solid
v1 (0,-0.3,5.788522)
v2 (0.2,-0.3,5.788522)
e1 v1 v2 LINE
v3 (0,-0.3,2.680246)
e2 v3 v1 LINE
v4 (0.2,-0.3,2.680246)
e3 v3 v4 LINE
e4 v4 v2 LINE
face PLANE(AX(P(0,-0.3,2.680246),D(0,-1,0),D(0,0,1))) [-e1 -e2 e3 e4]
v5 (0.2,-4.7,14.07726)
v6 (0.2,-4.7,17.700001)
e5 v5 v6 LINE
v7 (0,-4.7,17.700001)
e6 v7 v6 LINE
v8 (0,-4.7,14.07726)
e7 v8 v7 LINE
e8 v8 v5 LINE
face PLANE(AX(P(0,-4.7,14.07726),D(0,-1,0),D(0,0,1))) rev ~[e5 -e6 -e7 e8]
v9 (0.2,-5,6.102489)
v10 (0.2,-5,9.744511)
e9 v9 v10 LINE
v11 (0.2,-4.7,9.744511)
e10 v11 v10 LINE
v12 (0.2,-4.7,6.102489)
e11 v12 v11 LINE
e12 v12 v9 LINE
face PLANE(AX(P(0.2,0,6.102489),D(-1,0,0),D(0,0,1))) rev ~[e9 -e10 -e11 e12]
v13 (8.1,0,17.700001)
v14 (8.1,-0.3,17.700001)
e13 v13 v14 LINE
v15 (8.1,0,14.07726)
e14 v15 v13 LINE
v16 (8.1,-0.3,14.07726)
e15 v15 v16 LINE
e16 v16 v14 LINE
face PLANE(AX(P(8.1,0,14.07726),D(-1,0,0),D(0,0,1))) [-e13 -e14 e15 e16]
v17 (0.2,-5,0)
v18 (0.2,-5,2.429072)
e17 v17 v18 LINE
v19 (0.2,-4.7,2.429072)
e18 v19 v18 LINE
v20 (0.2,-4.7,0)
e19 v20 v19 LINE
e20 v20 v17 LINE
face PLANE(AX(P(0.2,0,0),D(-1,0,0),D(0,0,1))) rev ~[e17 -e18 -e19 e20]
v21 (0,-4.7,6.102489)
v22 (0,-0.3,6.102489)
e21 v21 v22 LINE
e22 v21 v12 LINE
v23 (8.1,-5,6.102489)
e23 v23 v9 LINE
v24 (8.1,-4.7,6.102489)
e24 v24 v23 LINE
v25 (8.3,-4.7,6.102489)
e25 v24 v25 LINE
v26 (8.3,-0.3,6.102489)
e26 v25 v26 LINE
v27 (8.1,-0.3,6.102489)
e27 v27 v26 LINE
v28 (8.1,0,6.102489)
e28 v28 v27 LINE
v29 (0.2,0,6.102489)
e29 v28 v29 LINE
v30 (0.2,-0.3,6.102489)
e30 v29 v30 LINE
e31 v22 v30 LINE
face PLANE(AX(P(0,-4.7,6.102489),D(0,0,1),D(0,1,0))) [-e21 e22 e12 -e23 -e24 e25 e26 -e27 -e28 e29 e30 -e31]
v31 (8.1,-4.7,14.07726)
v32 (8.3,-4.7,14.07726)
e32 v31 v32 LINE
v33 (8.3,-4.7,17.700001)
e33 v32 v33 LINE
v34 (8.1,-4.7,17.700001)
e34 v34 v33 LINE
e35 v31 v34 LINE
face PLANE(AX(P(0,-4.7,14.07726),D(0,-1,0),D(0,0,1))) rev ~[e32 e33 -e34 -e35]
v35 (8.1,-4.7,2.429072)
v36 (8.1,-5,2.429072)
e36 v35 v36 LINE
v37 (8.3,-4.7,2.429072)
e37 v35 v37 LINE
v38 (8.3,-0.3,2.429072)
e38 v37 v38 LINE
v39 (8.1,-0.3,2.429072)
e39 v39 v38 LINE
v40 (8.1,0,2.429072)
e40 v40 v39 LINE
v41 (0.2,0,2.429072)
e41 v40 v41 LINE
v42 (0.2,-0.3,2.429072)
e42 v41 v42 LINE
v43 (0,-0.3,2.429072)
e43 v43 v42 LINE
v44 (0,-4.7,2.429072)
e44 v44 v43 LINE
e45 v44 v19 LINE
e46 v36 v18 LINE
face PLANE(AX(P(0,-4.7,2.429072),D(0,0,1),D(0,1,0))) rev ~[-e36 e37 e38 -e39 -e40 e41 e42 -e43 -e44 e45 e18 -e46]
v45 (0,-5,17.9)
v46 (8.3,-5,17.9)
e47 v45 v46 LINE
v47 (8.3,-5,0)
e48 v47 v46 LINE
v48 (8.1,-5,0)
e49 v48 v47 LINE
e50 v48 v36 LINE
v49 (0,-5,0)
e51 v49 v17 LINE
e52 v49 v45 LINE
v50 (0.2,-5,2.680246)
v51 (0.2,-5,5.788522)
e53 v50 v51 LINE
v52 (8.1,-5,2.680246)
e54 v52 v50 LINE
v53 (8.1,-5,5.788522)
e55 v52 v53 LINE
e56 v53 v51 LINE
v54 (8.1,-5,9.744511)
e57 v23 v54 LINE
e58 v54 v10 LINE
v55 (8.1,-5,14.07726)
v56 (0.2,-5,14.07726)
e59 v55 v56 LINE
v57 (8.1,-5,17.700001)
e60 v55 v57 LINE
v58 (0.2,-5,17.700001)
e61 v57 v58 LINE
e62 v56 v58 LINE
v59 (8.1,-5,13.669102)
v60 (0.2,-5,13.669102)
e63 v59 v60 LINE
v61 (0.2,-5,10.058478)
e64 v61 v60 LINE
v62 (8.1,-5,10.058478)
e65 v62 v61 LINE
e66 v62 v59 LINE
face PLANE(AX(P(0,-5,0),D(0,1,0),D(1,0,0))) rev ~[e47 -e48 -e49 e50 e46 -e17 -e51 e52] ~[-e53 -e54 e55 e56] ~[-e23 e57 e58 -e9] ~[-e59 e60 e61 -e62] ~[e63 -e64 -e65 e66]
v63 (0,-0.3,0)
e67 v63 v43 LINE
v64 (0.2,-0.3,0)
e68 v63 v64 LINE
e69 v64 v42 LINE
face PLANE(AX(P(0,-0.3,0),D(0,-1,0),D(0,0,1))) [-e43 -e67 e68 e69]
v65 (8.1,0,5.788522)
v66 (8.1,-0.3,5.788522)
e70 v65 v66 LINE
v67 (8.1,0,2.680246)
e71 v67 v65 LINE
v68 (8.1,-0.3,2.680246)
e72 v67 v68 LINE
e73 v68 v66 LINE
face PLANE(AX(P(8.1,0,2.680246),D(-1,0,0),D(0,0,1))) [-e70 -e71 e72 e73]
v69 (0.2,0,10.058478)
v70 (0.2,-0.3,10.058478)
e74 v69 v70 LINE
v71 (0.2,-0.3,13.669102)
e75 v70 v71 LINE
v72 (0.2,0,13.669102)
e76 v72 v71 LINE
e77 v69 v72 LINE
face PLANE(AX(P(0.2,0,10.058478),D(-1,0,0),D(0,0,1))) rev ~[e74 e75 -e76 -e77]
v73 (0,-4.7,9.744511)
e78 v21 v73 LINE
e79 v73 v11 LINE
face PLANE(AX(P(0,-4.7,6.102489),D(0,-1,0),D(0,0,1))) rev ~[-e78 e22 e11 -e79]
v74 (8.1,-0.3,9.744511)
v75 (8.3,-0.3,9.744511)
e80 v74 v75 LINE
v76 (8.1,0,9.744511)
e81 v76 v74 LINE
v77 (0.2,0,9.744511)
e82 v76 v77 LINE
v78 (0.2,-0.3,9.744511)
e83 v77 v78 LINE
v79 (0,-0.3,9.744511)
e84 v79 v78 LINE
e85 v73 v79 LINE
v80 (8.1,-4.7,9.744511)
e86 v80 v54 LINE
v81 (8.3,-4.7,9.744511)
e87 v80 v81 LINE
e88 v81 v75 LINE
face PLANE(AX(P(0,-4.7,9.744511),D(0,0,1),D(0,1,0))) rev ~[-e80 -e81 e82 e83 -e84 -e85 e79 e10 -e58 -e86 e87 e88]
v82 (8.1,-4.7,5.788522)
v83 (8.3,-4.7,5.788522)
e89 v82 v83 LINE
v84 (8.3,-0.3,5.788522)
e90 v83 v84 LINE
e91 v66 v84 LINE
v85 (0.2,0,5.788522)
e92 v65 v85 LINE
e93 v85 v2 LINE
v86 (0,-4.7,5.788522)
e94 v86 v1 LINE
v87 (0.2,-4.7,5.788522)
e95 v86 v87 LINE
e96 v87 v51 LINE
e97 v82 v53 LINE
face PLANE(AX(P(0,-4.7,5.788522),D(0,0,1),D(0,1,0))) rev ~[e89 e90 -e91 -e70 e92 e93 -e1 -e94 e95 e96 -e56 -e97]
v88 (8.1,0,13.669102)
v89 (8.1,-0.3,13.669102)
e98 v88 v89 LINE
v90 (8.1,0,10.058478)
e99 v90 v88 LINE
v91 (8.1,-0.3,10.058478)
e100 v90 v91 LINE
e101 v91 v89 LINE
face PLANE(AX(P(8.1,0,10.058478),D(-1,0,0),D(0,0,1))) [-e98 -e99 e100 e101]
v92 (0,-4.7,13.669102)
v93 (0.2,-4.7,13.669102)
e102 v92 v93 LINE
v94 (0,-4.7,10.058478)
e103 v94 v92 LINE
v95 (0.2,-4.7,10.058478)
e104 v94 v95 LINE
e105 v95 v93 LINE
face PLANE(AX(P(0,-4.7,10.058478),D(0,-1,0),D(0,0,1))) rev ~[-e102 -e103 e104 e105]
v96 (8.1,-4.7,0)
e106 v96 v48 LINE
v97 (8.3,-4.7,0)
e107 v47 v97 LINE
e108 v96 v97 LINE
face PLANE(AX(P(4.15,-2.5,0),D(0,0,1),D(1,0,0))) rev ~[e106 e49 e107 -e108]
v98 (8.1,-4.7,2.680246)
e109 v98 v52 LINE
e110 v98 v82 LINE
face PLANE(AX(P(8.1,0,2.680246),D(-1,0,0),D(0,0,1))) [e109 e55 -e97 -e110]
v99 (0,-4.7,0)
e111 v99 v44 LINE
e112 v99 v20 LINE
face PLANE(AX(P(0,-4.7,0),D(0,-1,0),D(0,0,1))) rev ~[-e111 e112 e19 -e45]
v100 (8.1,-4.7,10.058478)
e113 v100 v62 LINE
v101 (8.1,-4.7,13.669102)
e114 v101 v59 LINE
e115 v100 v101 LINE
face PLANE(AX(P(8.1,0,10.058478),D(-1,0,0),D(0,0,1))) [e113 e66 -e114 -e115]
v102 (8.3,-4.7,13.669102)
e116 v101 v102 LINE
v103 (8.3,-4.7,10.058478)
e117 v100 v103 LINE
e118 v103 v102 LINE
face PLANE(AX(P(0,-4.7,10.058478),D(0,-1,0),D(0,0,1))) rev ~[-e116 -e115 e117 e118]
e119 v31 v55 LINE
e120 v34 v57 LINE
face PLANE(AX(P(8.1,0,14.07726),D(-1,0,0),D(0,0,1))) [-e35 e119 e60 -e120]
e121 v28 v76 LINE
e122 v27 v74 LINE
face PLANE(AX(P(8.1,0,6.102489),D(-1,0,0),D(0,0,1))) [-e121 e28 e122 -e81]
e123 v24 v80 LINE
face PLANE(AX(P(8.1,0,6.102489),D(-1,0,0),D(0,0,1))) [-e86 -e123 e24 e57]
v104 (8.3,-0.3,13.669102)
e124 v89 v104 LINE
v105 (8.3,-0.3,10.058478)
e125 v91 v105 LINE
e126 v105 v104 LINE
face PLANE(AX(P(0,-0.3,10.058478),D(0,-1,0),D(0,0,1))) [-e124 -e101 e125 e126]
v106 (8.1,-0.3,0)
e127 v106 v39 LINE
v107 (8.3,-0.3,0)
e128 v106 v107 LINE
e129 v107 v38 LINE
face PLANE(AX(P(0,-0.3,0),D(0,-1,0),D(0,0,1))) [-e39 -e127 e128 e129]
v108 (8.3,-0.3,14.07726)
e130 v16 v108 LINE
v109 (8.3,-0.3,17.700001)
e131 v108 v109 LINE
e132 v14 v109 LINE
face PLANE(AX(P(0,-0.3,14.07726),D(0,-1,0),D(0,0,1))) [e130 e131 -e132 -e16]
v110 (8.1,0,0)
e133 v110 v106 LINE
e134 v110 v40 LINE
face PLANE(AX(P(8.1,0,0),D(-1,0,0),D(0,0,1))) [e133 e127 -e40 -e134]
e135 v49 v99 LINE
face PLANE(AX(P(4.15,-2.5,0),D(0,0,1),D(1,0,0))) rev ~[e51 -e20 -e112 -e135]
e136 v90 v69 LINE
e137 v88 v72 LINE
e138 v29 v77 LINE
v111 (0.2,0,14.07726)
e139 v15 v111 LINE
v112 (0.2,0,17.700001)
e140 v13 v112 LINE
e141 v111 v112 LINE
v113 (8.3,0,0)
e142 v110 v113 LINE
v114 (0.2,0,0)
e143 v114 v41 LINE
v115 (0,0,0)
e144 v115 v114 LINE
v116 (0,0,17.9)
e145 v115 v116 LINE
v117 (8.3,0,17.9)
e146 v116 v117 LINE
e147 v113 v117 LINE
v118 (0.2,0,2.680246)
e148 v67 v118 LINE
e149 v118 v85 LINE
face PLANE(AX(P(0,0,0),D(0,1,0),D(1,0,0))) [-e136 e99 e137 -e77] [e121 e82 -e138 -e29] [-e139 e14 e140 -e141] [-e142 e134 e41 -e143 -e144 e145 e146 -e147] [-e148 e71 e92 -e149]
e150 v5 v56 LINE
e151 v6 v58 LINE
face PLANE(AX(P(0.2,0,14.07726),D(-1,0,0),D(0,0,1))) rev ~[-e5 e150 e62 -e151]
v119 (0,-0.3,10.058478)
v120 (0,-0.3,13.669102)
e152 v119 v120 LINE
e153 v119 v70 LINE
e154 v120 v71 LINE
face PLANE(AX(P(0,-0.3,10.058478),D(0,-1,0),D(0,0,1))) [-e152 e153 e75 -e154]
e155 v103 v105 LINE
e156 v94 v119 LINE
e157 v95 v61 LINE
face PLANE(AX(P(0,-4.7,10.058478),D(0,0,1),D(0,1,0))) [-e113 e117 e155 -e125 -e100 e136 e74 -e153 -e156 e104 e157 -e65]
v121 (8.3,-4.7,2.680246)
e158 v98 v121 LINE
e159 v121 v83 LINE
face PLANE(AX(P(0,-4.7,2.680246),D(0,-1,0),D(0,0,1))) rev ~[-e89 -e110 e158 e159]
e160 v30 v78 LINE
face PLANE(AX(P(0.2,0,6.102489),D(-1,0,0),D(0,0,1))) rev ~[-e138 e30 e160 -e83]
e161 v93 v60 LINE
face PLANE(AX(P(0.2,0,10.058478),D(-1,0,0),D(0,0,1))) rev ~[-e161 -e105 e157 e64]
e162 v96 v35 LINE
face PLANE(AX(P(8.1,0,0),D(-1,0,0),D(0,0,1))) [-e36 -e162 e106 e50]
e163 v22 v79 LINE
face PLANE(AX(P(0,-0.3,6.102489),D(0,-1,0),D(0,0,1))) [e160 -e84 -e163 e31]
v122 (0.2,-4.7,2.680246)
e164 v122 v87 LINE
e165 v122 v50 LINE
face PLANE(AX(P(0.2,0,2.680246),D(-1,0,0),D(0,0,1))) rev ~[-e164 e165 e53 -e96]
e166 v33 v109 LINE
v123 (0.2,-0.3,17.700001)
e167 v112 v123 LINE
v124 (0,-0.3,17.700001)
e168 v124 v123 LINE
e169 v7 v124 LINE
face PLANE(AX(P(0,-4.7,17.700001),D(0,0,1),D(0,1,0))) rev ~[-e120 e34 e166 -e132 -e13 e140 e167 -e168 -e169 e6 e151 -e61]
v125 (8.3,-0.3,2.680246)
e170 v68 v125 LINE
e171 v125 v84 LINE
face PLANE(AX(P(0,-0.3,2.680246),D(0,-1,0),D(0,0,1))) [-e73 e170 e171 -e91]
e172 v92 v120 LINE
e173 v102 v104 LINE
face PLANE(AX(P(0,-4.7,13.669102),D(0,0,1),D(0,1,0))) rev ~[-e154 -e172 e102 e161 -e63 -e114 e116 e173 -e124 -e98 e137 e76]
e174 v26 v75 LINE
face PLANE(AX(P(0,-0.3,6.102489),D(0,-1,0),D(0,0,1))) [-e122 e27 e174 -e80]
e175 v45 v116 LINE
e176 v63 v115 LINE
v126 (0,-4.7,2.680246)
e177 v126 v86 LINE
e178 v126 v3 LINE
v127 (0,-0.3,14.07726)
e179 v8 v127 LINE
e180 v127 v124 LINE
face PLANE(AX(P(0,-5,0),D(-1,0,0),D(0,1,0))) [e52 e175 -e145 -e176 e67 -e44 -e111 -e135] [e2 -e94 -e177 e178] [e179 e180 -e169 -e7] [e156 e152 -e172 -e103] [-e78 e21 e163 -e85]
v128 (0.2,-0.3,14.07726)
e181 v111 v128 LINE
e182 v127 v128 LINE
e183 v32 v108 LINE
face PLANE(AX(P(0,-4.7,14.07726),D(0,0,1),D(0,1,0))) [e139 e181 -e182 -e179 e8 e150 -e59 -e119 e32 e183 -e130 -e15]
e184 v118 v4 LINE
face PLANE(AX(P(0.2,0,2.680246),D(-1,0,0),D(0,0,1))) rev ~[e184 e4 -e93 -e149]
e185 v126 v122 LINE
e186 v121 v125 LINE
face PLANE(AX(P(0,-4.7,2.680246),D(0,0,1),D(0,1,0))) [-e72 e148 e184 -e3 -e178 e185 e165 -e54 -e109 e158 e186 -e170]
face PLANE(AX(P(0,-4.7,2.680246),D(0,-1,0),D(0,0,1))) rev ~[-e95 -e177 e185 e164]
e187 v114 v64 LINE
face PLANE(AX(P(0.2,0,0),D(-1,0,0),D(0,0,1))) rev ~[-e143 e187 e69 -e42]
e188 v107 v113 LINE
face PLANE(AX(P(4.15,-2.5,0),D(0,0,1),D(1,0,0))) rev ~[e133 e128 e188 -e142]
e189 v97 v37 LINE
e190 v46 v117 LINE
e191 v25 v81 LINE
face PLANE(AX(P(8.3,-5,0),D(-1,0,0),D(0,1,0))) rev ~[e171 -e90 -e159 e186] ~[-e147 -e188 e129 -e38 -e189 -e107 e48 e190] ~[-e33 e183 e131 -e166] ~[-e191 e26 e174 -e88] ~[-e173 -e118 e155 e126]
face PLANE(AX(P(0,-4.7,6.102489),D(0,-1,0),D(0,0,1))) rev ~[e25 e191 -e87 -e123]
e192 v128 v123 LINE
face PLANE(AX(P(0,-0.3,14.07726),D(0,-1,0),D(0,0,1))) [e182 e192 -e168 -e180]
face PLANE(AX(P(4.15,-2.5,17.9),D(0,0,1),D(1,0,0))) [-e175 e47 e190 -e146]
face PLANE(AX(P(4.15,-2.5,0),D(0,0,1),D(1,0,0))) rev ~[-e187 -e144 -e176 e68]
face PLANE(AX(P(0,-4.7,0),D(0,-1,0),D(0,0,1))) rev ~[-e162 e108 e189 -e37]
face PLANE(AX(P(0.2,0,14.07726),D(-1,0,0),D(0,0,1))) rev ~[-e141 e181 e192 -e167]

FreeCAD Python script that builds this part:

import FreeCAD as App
import Part
import Sketcher
from FreeCAD import Vector

doc = App.newDocument("Part")
body = doc.addObject("PartDesign::Body", "Body")

sketch1 = body.newObject("Sketcher::SketchObject", "Sketch")
sketch1.AttachmentSupport = (doc.getObject("XY_Plane"), [""])
sketch1.MapMode = "FlatFace"
sketch1.addGeometry([
    Part.LineSegment(Vector(0, 0, 0), Vector(0, -5, 0)),
    Part.LineSegment(Vector(0, -5, 0), Vector(8.3, -5, 0)),
    Part.LineSegment(Vector(8.3, -5, 0), Vector(8.3, 0, 0)),
    Part.LineSegment(Vector(8.3, 0, 0), Vector(0, 0, 0)),
], False)
sketch1.addConstraint([
    Sketcher.Constraint("Coincident", 0, 2, 1, 1),
    Sketcher.Constraint("Coincident", 1, 2, 2, 1),
    Sketcher.Constraint("Coincident", 2, 2, 3, 1),
    Sketcher.Constraint("Coincident", 3, 2, 0, 1),
    Sketcher.Constraint("Vertical", 0),
    Sketcher.Constraint("Horizontal", 1),
    Sketcher.Constraint("Vertical", 2),
    Sketcher.Constraint("Horizontal", 3),
    Sketcher.Constraint("Coincident", 3, 2, -1, 1),
    Sketcher.Constraint("DistanceY", 0, 2, 0, 1, 5.0),
    Sketcher.Constraint("DistanceX", 1, 1, 1, 2, 8.3),
])
pad1 = body.newObject("PartDesign::Pad", "Pad")
pad1.Profile = sketch1
pad1.Length = 17.9

sketch2 = body.newObject("Sketcher::SketchObject", "Sketch001")
sketch2.AttachmentSupport = (doc.getObject("XZ_Plane"), [""])
sketch2.MapMode = "FlatFace"
sketch2.addGeometry([
    Part.LineSegment(Vector(8.1, 17.700001, 0), Vector(8.1, 14.07726, 0)),
    Part.LineSegment(Vector(8.1, 14.07726, 0), Vector(0.2, 14.07726, 0)),
    Part.LineSegment(Vector(0.2, 14.07726, 0), Vector(0.2, 17.700001, 0)),
    Part.LineSegment(Vector(0.2, 17.700001, 0), Vector(8.1, 17.700001, 0)),
    Part.LineSegment(Vector(8.1, 13.669102, 0), Vector(8.1, 10.058478, 0)),
    Part.LineSegment(Vector(8.1, 10.058478, 0), Vector(0.2, 10.058478, 0)),
    Part.LineSegment(Vector(0.2, 10.058478, 0), Vector(0.2, 13.669102, 0)),
    Part.LineSegment(Vector(0.2, 13.669102, 0), Vector(8.1, 13.669102, 0)),
    Part.LineSegment(Vector(8.1, 9.744511, 0), Vector(8.1, 6.102489, 0)),
    Part.LineSegment(Vector(8.1, 6.102489, 0), Vector(0.2, 6.102489, 0)),
    Part.LineSegment(Vector(0.2, 6.102489, 0), Vector(0.2, 9.744511, 0)),
    Part.LineSegment(Vector(0.2, 9.744511, 0), Vector(8.1, 9.744511, 0)),
    Part.LineSegment(Vector(8.1, 5.788522, 0), Vector(8.1, 2.680246, 0)),
    Part.LineSegment(Vector(8.1, 2.680246, 0), Vector(0.2, 2.680246, 0)),
    Part.LineSegment(Vector(0.2, 2.680246, 0), Vector(0.2, 5.788522, 0)),
    Part.LineSegment(Vector(0.2, 5.788522, 0), Vector(8.1, 5.788522, 0)),
    Part.LineSegment(Vector(8.1, 2.429072, 0), Vector(8.1, 0, 0)),
    Part.LineSegment(Vector(8.1, 0, 0), Vector(0.2, 0, 0)),
    Part.LineSegment(Vector(0.2, 0, 0), Vector(0.2, 2.429072, 0)),
    Part.LineSegment(Vector(0.2, 2.429072, 0), Vector(8.1, 2.429072, 0)),
], False)
sketch2.addConstraint([
    Sketcher.Constraint("Coincident", 0, 2, 1, 1),
    Sketcher.Constraint("Coincident", 1, 2, 2, 1),
    Sketcher.Constraint("Coincident", 2, 2, 3, 1),
    Sketcher.Constraint("Coincident", 3, 2, 0, 1),
    Sketcher.Constraint("Coincident", 4, 2, 5, 1),
    Sketcher.Constraint("Coincident", 5, 2, 6, 1),
    Sketcher.Constraint("Coincident", 6, 2, 7, 1),
    Sketcher.Constraint("Coincident", 7, 2, 4, 1),
    Sketcher.Constraint("Coincident", 8, 2, 9, 1),
    Sketcher.Constraint("Coincident", 9, 2, 10, 1),
    Sketcher.Constraint("Coincident", 10, 2, 11, 1),
    Sketcher.Constraint("Coincident", 11, 2, 8, 1),
    Sketcher.Constraint("Coincident", 12, 2, 13, 1),
    Sketcher.Constraint("Coincident", 13, 2, 14, 1),
    Sketcher.Constraint("Coincident", 14, 2, 15, 1),
    Sketcher.Constraint("Coincident", 15, 2, 12, 1),
    Sketcher.Constraint("Coincident", 16, 2, 17, 1),
    Sketcher.Constraint("Coincident", 17, 2, 18, 1),
    Sketcher.Constraint("Coincident", 18, 2, 19, 1),
    Sketcher.Constraint("Coincident", 19, 2, 16, 1),
    Sketcher.Constraint("Vertical", 0),
    Sketcher.Constraint("Horizontal", 1),
    Sketcher.Constraint("Vertical", 2),
    Sketcher.Constraint("Horizontal", 3),
    Sketcher.Constraint("Vertical", 4),
    Sketcher.Constraint("Horizontal", 5),
    Sketcher.Constraint("Vertical", 6),
    Sketcher.Constraint("Horizontal", 7),
    Sketcher.Constraint("Vertical", 8),
    Sketcher.Constraint("Horizontal", 9),
    Sketcher.Constraint("Vertical", 10),
    Sketcher.Constraint("Horizontal", 11),
    Sketcher.Constraint("Vertical", 12),
    Sketcher.Constraint("Horizontal", 13),
    Sketcher.Constraint("Vertical", 14),
    Sketcher.Constraint("Horizontal", 15),
    Sketcher.Constraint("Vertical", 16),
    Sketcher.Constraint("Horizontal", 17),
    Sketcher.Constraint("Vertical", 18),
    Sketcher.Constraint("Horizontal", 19),
    Sketcher.Constraint("PointOnObject", 16, 2, -1),
    Sketcher.Constraint("Vertical", 3, 2, 4, 2),
    Sketcher.Constraint("Vertical", 2, 2, 5, 2),
    Sketcher.Constraint("Vertical", 7, 2, 8, 2),
    Sketcher.Constraint("Vertical", 6, 2, 9, 2),
    Sketcher.Constraint("Vertical", 11, 2, 12, 2),
    Sketcher.Constraint("Vertical", 10, 2, 13, 2),
    Sketcher.Constraint("Vertical", 15, 2, 16, 2),
    Sketcher.Constraint("Vertical", 14, 2, 17, 2),
    Sketcher.Constraint("DistanceX", 1, 2, 1, 1, 7.9),
    Sketcher.Constraint("DistanceX", -1, 1, 0, 2, 8.1),
    Sketcher.Constraint("DistanceY", -1, 1, 2, 2, 17.700001),
    Sketcher.Constraint("DistanceY", 0, 2, 0, 1, 3.622741),
    Sketcher.Constraint("DistanceY", 8, 2, 8, 1, 3.642021),
    Sketcher.Constraint("DistanceY", 6, 2, 2, 2, 4.030899),
    Sketcher.Constraint("DistanceY", 4, 2, 4, 1, 3.610624),
    Sketcher.Constraint("DistanceY", 12, 2, 12, 1, 3.108276),
    Sketcher.Constraint("DistanceY", 16, 2, 16, 1, 2.429072),
    Sketcher.Constraint("DistanceY", -1, 1, 8, 2, 6.102489),
    Sketcher.Constraint("DistanceY", 12, 2, 4, 2, 7.378232),
])
pocket1 = body.newObject("PartDesign::Pocket", "Pocket")
pocket1.Profile = sketch2
pocket1.Length = 25
pocket1.Reversed = True

sketch3 = body.newObject("Sketcher::SketchObject", "Sketch002")
sketch3.AttachmentSupport = (doc.getObject("YZ_Plane"), [""])
sketch3.MapMode = "FlatFace"
sketch3.addGeometry([
    Part.LineSegment(Vector(-4.7, 17.700001, 0), Vector(-4.7, 14.07726, 0)),
    Part.LineSegment(Vector(-4.7, 14.07726, 0), Vector(-0.3, 14.07726, 0)),
    Part.LineSegment(Vector(-0.3, 14.07726, 0), Vector(-0.3, 17.700001, 0)),
    Part.LineSegment(Vector(-0.3, 17.700001, 0), Vector(-4.7, 17.700001, 0)),
    Part.LineSegment(Vector(-4.7, 13.669102, 0), Vector(-4.7, 10.058478, 0)),
    Part.LineSegment(Vector(-4.7, 10.058478, 0), Vector(-0.3, 10.058478, 0)),
    Part.LineSegment(Vector(-0.3, 10.058478, 0), Vector(-0.3, 13.669102, 0)),
    Part.LineSegment(Vector(-0.3, 13.669102, 0), Vector(-4.7, 13.669102, 0)),
    Part.LineSegment(Vector(-4.7, 9.744511, 0), Vector(-4.7, 6.102489, 0)),
    Part.LineSegment(Vector(-4.7, 6.102489, 0), Vector(-0.3, 6.102489, 0)),
    Part.LineSegment(Vector(-0.3, 6.102489, 0), Vector(-0.3, 9.744511, 0)),
    Part.LineSegment(Vector(-0.3, 9.744511, 0), Vector(-4.7, 9.744511, 0)),
    Part.LineSegment(Vector(-4.7, 5.788522, 0), Vector(-4.7, 2.680246, 0)),
    Part.LineSegment(Vector(-4.7, 2.680246, 0), Vector(-0.3, 2.680246, 0)),
    Part.LineSegment(Vector(-0.3, 2.680246, 0), Vector(-0.3, 5.788522, 0)),
    Part.LineSegment(Vector(-0.3, 5.788522, 0), Vector(-4.7, 5.788522, 0)),
    Part.LineSegment(Vector(-4.7, 2.429072, 0), Vector(-4.7, 0, 0)),
    Part.LineSegment(Vector(-4.7, 0, 0), Vector(-0.3, 0, 0)),
    Part.LineSegment(Vector(-0.3, 0, 0), Vector(-0.3, 2.429072, 0)),
    Part.LineSegment(Vector(-0.3, 2.429072, 0), Vector(-4.7, 2.429072, 0)),
], False)
sketch3.addConstraint([
    Sketcher.Constraint("Coincident", 0, 2, 1, 1),
    Sketcher.Constraint("Coincident", 1, 2, 2, 1),
    Sketcher.Constraint("Coincident", 2, 2, 3, 1),
    Sketcher.Constraint("Coincident", 3, 2, 0, 1),
    Sketcher.Constraint("Coincident", 4, 2, 5, 1),
    Sketcher.Constraint("Coincident", 5, 2, 6, 1),
    Sketcher.Constraint("Coincident", 6, 2, 7, 1),
    Sketcher.Constraint("Coincident", 7, 2, 4, 1),
    Sketcher.Constraint("Coincident", 8, 2, 9, 1),
    Sketcher.Constraint("Coincident", 9, 2, 10, 1),
    Sketcher.Constraint("Coincident", 10, 2, 11, 1),
    Sketcher.Constraint("Coincident", 11, 2, 8, 1),
    Sketcher.Constraint("Coincident", 12, 2, 13, 1),
    Sketcher.Constraint("Coincident", 13, 2, 14, 1),
    Sketcher.Constraint("Coincident", 14, 2, 15, 1),
    Sketcher.Constraint("Coincident", 15, 2, 12, 1),
    Sketcher.Constraint("Coincident", 16, 2, 17, 1),
    Sketcher.Constraint("Coincident", 17, 2, 18, 1),
    Sketcher.Constraint("Coincident", 18, 2, 19, 1),
    Sketcher.Constraint("Coincident", 19, 2, 16, 1),
    Sketcher.Constraint("Vertical", 0),
    Sketcher.Constraint("Horizontal", 1),
    Sketcher.Constraint("Vertical", 2),
    Sketcher.Constraint("Horizontal", 3),
    Sketcher.Constraint("Vertical", 4),
    Sketcher.Constraint("Horizontal", 5),
    Sketcher.Constraint("Vertical", 6),
    Sketcher.Constraint("Horizontal", 7),
    Sketcher.Constraint("Vertical", 8),
    Sketcher.Constraint("Horizontal", 9),
    Sketcher.Constraint("Vertical", 10),
    Sketcher.Constraint("Horizontal", 11),
    Sketcher.Constraint("Vertical", 12),
    Sketcher.Constraint("Horizontal", 13),
    Sketcher.Constraint("Vertical", 14),
    Sketcher.Constraint("Horizontal", 15),
    Sketcher.Constraint("Vertical", 16),
    Sketcher.Constraint("Horizontal", 17),
    Sketcher.Constraint("Vertical", 18),
    Sketcher.Constraint("Horizontal", 19),
    Sketcher.Constraint("PointOnObject", 16, 2, -1),
    Sketcher.Constraint("Vertical", 3, 2, 4, 2),
    Sketcher.Constraint("Vertical", 2, 2, 5, 2),
    Sketcher.Constraint("Vertical", 7, 2, 8, 2),
    Sketcher.Constraint("Vertical", 6, 2, 9, 2),
    Sketcher.Constraint("Vertical", 11, 2, 12, 2),
    Sketcher.Constraint("Vertical", 10, 2, 13, 2),
    Sketcher.Constraint("Vertical", 15, 2, 16, 2),
    Sketcher.Constraint("Vertical", 14, 2, 17, 2),
    Sketcher.Constraint("DistanceX", 1, 1, 1, 2, 4.4),
    Sketcher.Constraint("DistanceX", 0, 2, -1, 1, 4.7),
    Sketcher.Constraint("DistanceY", -1, 1, 2, 2, 17.700001),
    Sketcher.Constraint("DistanceY", 0, 2, 0, 1, 3.622741),
    Sketcher.Constraint("DistanceY", 8, 2, 8, 1, 3.642021),
    Sketcher.Constraint("DistanceY", 6, 2, 2, 2, 4.030899),
    Sketcher.Constraint("DistanceY", 4, 2, 4, 1, 3.610624),
    Sketcher.Constraint("DistanceY", 12, 2, 12, 1, 3.108276),
    Sketcher.Constraint("DistanceY", 16, 2, 16, 1, 2.429072),
    Sketcher.Constraint("DistanceY", -1, 1, 8, 2, 6.102489),
    Sketcher.Constraint("DistanceY", 12, 2, 4, 2, 7.378232),
])
pocket2 = body.newObject("PartDesign::Pocket", "Pocket001")
pocket2.Profile = sketch3
pocket2.Length = 25
pocket2.Reversed = True

doc.recompute()
